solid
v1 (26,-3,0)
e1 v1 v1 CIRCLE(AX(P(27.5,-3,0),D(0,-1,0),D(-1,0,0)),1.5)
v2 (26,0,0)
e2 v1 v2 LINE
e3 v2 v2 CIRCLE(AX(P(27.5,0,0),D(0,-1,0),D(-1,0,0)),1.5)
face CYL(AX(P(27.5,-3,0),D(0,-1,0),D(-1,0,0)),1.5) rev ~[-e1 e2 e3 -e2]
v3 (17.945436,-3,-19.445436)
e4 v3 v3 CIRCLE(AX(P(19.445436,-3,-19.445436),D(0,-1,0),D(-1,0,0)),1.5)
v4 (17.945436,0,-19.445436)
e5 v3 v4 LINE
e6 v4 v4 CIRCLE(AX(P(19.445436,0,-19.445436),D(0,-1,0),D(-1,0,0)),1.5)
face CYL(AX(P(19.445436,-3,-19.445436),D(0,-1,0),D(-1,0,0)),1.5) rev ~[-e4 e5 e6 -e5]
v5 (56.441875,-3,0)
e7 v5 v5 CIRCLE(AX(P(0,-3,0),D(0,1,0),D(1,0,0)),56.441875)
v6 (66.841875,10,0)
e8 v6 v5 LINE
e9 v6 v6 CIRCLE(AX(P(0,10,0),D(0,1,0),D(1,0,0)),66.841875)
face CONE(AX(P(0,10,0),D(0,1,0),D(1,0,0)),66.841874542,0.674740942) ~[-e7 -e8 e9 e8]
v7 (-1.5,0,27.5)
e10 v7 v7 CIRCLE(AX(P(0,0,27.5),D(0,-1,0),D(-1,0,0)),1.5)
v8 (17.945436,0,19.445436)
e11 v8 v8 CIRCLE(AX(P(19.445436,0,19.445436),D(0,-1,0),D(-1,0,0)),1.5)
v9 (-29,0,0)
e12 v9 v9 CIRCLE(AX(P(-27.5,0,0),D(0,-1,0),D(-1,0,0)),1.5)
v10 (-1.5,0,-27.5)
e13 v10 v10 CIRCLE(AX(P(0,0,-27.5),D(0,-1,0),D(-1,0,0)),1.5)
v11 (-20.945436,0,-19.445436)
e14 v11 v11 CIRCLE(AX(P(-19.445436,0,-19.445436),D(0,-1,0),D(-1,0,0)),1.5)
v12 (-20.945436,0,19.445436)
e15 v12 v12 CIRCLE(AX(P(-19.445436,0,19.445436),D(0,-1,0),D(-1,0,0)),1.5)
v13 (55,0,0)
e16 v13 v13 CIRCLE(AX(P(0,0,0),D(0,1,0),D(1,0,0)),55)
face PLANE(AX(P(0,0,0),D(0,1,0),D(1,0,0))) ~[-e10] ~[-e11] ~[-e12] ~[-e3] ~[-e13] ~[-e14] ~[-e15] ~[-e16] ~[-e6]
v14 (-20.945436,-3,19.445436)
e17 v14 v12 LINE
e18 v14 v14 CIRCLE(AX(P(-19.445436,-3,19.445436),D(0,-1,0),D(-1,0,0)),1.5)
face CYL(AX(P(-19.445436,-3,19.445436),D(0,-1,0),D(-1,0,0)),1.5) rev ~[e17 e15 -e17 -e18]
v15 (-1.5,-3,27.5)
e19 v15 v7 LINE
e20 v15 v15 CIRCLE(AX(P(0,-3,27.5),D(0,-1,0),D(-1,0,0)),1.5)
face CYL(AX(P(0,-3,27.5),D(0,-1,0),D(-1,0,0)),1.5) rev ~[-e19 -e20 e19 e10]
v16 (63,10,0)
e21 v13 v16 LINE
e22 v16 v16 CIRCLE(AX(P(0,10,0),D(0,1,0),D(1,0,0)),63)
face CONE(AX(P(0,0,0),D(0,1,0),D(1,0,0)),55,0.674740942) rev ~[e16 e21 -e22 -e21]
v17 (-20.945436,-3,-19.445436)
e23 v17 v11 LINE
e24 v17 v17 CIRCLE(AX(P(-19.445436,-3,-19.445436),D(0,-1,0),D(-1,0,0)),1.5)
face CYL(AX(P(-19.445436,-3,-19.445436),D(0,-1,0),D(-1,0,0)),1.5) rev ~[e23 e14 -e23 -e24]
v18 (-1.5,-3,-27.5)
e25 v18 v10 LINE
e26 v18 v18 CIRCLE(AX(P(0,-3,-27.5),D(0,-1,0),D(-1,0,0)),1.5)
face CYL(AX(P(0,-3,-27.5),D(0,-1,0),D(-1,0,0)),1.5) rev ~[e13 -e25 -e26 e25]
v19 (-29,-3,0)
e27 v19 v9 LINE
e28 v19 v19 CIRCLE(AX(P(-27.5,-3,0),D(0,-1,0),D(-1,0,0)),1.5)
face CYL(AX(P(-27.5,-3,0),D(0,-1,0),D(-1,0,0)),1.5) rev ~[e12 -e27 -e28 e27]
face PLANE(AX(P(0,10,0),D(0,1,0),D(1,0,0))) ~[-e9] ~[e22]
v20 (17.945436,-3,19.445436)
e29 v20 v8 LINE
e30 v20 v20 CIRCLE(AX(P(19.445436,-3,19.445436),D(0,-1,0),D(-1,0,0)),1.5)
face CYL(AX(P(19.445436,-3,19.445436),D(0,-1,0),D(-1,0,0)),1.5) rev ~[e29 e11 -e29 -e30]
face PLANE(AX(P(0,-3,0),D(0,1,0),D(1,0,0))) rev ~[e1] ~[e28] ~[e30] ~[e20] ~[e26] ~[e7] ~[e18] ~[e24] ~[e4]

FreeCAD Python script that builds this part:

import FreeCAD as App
import Part
import Sketcher

V = App.Vector

doc = App.newDocument("Part")
params = doc.addObject("Spreadsheet::Sheet", "Params")
for row, (alias, value) in enumerate([
    ("sketch1_width", "55 mm"),
    ("sketch1_height", "3 mm"),
    ("revolution_angle", "360 deg"),
    ("sketch2_diameter", "3 mm"),
], start=1):
    params.set(f"A{row}", alias)
    params.set(f"B{row}", "=" + value)
    params.setAlias(f"B{row}", alias)

body = doc.addObject("PartDesign::Body", "Body")

# Sketch on XY plane
sketch1 = body.newObject("Sketcher::SketchObject", "Sketch")
sketch1.AttachmentSupport = (doc.getObject("XY_Plane"), [""])
sketch1.MapMode = "FlatFace"
sketch1.addGeometry([
    Part.LineSegment(V(63, 10, 0), V(55, 0, 0)),  # 0
    Part.LineSegment(V(55, 0, 0), V(0, 0, 0)),  # 1
    Part.LineSegment(V(0, 0, 0), V(0, -3, 0)),  # 2
    Part.LineSegment(V(0, -3, 0), V(56.4, -3, 0)),  # 3
    Part.LineSegment(V(56.4, -3, 0), V(66.8, 10, 0)),  # 4
    Part.LineSegment(V(66.8, 10, 0), V(63, 10, 0)),  # 5
], False)
sketch1.addConstraint([
    Sketcher.Constraint("Coincident", 0, 2, 1, 1),
    Sketcher.Constraint("Coincident", 1, 2, 2, 1),
    Sketcher.Constraint("Coincident", 2, 2, 3, 1),
    Sketcher.Constraint("Coincident", 3, 2, 4, 1),
    Sketcher.Constraint("Coincident", 4, 2, 5, 1),
    Sketcher.Constraint("Coincident", 5, 2, 0, 1),
    Sketcher.Constraint("Horizontal", 1),
    Sketcher.Constraint("Vertical", 2),
    Sketcher.Constraint("Horizontal", 3),
    Sketcher.Constraint("Horizontal", 5),
    Sketcher.Constraint("Coincident", 1, 2, -1, 1),
    Sketcher.Constraint("Parallel", 0, 4),
    Sketcher.Constraint("DistanceX", 1, 2, 1, 1, 55.0),
    Sketcher.Constraint("DistanceY", 2, 2, 2, 1, 3.0),
    Sketcher.Constraint("DistanceY", -1, 1, 4, 2, 10.0),
    Sketcher.Constraint("DistanceX", -1, 1, 5, 2, 63.0),
    Sketcher.Constraint("DistanceX", 3, 1, 3, 2, 56.441875),
])
sketch1.setExpression("Constraints[12]", "Params.sketch1_width")
sketch1.setExpression("Constraints[13]", "Params.sketch1_height")
revolution = body.newObject("PartDesign::Revolution", "Revolution")
revolution.Profile = sketch1
revolution.ReferenceAxis = (sketch1, ["V_Axis"])
revolution.setExpression("Angle", "Params.revolution_angle")

# Sketch on XZ plane
sketch2 = body.newObject("Sketcher::SketchObject", "Sketch001")
sketch2.AttachmentSupport = (doc.getObject("XZ_Plane"), [""])
sketch2.MapMode = "FlatFace"
sketch2.AttachmentOffset = App.Placement(V(0, 0, 3), App.Rotation())
sketch2.addGeometry([
    Part.Circle(V(0, 27.5, 0), V(0, 0, 1), 1.5),  # 0
    Part.Circle(V(19.4, 19.4, 0), V(0, 0, 1), 1.5),  # 1
    Part.Circle(V(27.5, 0, 0), V(0, 0, 1), 1.5),  # 2
    Part.Circle(V(19.4, -19.4, 0), V(0, 0, 1), 1.5),  # 3
    Part.Circle(V(0, -27.5, 0), V(0, 0, 1), 1.5),  # 4
    Part.Circle(V(-19.4, -19.4, 0), V(0, 0, 1), 1.5),  # 5
    Part.Circle(V(-27.5, 0, 0), V(0, 0, 1), 1.5),  # 6
    Part.Circle(V(-19.4, 19.4, 0), V(0, 0, 1), 1.5),  # 7
], False)
sketch2.addConstraint([
    Sketcher.Constraint("Equal", 0, 1),
    Sketcher.Constraint("Equal", 1, 2),
    Sketcher.Constraint("Equal", 2, 3),
    Sketcher.Constraint("Equal", 3, 4),
    Sketcher.Constraint("Equal", 4, 5),
    Sketcher.Constraint("Equal", 5, 6),
    Sketcher.Constraint("Equal", 6, 7),
    Sketcher.Constraint("Symmetric", 0, 3, 4, 3, -1, 1),
    Sketcher.Constraint("Symmetric", 1, 3, 5, 3, -1, 1),
    Sketcher.Constraint("Symmetric", 2, 3, 6, 3, -1, 1),
    Sketcher.Constraint("Symmetric", 3, 3, 7, 3, -1, 1),
    Sketcher.Constraint("Symmetric", 3, 3, 5, 3, -2),
    Sketcher.Constraint("PointOnObject", 0, 3, -2),
    Sketcher.Constraint("PointOnObject", 2, 3, -1),
    Sketcher.Constraint("Diameter", 0, 3.0),
    Sketcher.Constraint("DistanceY", 4, 3, 0, 3, 55.0),
    Sketcher.Constraint("DistanceX", -1, 1, 2, 3, 27.5),
    Sketcher.Constraint("DistanceX", -1, 1, 1, 3, 19.445436),
    Sketcher.Constraint("DistanceY", -1, 1, 1, 3, 19.445436),
])
sketch2.setExpression("Constraints[14]", "Params.sketch2_diameter")
pocket1 = body.newObject("PartDesign::Pocket", "Pocket")
pocket1.Profile = sketch2
pocket1.Type = "ThroughAll"

doc.recompute()
